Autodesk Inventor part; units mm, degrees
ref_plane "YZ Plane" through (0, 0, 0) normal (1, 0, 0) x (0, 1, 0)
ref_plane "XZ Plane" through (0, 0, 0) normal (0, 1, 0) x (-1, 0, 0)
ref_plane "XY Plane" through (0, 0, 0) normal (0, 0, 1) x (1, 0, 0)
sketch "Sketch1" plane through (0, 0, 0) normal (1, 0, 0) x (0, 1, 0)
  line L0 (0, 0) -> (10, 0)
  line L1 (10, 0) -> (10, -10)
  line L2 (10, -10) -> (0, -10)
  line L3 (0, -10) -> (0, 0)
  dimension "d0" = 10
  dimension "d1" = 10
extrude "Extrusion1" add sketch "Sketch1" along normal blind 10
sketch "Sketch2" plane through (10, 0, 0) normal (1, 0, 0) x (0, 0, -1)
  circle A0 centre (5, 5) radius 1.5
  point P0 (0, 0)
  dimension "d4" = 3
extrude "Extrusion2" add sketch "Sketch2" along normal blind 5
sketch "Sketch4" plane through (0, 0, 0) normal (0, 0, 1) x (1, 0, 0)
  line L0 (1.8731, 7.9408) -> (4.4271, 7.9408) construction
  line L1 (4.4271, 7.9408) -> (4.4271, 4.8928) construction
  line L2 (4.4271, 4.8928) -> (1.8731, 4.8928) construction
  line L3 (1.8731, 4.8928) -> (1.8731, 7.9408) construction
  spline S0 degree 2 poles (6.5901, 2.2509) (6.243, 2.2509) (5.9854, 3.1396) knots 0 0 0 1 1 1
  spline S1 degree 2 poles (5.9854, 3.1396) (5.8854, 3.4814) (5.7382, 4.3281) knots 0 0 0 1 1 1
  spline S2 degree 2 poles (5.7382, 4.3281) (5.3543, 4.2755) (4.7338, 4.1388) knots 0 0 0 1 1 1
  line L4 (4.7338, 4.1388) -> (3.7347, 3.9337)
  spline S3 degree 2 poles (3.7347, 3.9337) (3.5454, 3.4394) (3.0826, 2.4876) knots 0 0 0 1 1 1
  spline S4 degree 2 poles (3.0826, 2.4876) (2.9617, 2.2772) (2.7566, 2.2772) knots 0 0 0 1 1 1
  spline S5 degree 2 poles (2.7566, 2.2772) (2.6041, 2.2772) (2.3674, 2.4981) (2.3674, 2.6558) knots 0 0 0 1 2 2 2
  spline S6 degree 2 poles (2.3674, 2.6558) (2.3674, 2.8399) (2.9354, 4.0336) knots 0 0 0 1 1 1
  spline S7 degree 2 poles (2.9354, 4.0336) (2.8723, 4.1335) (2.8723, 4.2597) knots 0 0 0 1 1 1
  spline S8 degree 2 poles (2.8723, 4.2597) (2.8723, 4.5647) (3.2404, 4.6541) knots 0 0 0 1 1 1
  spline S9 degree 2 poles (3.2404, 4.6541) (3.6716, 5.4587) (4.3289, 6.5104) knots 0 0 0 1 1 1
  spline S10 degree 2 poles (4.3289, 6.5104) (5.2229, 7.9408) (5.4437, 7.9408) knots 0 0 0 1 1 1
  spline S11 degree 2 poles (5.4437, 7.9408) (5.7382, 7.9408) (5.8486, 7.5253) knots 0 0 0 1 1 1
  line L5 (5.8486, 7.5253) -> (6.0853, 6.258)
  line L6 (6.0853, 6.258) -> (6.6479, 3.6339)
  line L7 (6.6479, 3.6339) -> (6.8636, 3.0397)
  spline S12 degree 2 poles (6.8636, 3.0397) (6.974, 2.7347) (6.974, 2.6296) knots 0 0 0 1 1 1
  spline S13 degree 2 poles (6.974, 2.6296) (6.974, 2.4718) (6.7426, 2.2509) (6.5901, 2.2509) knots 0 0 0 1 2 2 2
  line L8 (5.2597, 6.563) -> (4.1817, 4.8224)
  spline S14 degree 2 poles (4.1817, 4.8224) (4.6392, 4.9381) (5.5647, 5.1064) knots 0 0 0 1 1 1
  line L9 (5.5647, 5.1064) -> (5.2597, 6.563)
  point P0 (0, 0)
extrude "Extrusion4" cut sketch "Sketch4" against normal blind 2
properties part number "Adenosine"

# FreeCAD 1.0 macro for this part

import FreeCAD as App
import Part
import Sketcher
Q = App.Units.Quantity


def add_polygon(sketch, points):
    """Adds a closed chain of lines whose ends are joined by coincident constraints."""
    first, n = sketch.GeometryCount, len(points)
    for a, b in zip(points, points[1:] + points[:1]):
        sketch.addGeometry(Part.LineSegment(App.Vector(*a, 0), App.Vector(*b, 0)), False)
    for i in range(n):
        sketch.addConstraint(Sketcher.Constraint("Coincident", first + i, 2, first + (i + 1) % n, 1))

doc = App.newDocument("Part")
body = doc.addObject("PartDesign::Body", "Body")

sketch1 = doc.addObject("Sketcher::SketchObject", "Sketch")
body.addObject(sketch1)
sketch1.AttachmentSupport = (doc.YZ_Plane, [""])
sketch1.MapMode = "FlatFace"
add_polygon(sketch1, [(10, 0), (0, 0), (0, -10), (10, -10)])
sketch1.addConstraint(Sketcher.Constraint("Horizontal", 0))
sketch1.addConstraint(Sketcher.Constraint("Vertical", 1))
sketch1.addConstraint(Sketcher.Constraint("Horizontal", 2))
sketch1.addConstraint(Sketcher.Constraint("Vertical", 3))
sketch1.addConstraint(Sketcher.Constraint("Coincident", 0, 2, -1, 1))
sketch1.addConstraint(Sketcher.Constraint("Equal", 2, 1))
sketch1.addConstraint(Sketcher.Constraint("DistanceX", 0, 2, 0, 1, Q("10 mm")))
pad1 = doc.addObject("PartDesign::Pad", "Pad")
body.addObject(pad1)
pad1.Profile = sketch1
pad1.Length = 10

sketch2 = doc.addObject("Sketcher::SketchObject", "Sketch001")
body.addObject(sketch2)
sketch2.AttachmentSupport = (doc.YZ_Plane, [""])
sketch2.MapMode = "FlatFace"
sketch2.AttachmentOffset = App.Placement(App.Vector(0, 0, 10), App.Rotation())
sketch2.addGeometry(Part.Circle(App.Vector(5, -5, 0), App.Vector(0, 0, 1), 1.5), False)
sketch2.addConstraint(Sketcher.Constraint("Diameter", 0, Q("3 mm")))
sketch2.addConstraint(Sketcher.Constraint("DistanceX", -1, 1, 0, 3, Q("5 mm")))
sketch2.addConstraint(Sketcher.Constraint("DistanceY", 0, 3, -1, 1, Q("5 mm")))
pad2 = doc.addObject("PartDesign::Pad", "Pad001")
body.addObject(pad2)
pad2.Profile = sketch2
pad2.Length = 5

sketch3 = doc.addObject("Sketcher::SketchObject", "Sketch002")
body.addObject(sketch3)
sketch3.AttachmentSupport = (doc.XY_Plane, [""])
sketch3.MapMode = "FlatFace"
sketch3.addGeometry(Part.BSplineCurve([App.Vector(6.5901, 2.2509, 0), App.Vector(6.243, 2.2509, 0), App.Vector(5.9854, 3.1396, 0)], [3, 3], [0, 1], False, 2, [1, 1, 1], False), False)
sketch3.addGeometry(Part.BSplineCurve([App.Vector(6.974, 2.6296, 0), App.Vector(6.974, 2.4718, 0), App.Vector(6.7426, 2.2509, 0), App.Vector(6.5901, 2.2509, 0)], [3, 1, 3], [0, 1, 2], False, 2, [1, 1, 1, 1], False), False)
sketch3.addGeometry(Part.BSplineCurve([App.Vector(6.8636, 3.0397, 0), App.Vector(6.974, 2.7347, 0), App.Vector(6.974, 2.6296, 0)], [3, 3], [0, 1], False, 2, [1, 1, 1], False), False)
sketch3.addGeometry(Part.LineSegment(App.Vector(6.8636, 3.0397, 0), App.Vector(6.6479, 3.6339, 0)), False)
sketch3.addGeometry(Part.LineSegment(App.Vector(6.6479, 3.6339, 0), App.Vector(6.0853, 6.258, 0)), False)
sketch3.addGeometry(Part.LineSegment(App.Vector(6.0853, 6.258, 0), App.Vector(5.8486, 7.5253, 0)), False)
sketch3.addGeometry(Part.BSplineCurve([App.Vector(5.4437, 7.9408, 0), App.Vector(5.7382, 7.9408, 0), App.Vector(5.8486, 7.5253, 0)], [3, 3], [0, 1], False, 2, [1, 1, 1], False), False)
sketch3.addGeometry(Part.BSplineCurve([App.Vector(4.3289, 6.5104, 0), App.Vector(5.2229, 7.9408, 0), App.Vector(5.4437, 7.9408, 0)], [3, 3], [0, 1], False, 2, [1, 1, 1], False), False)
sketch3.addGeometry(Part.BSplineCurve([App.Vector(3.2404, 4.6541, 0), App.Vector(3.6716, 5.4587, 0), App.Vector(4.3289, 6.5104, 0)], [3, 3], [0, 1], False, 2, [1, 1, 1], False), False)
sketch3.addGeometry(Part.BSplineCurve([App.Vector(2.8723, 4.2597, 0), App.Vector(2.8723, 4.5647, 0), App.Vector(3.2404, 4.6541, 0)], [3, 3], [0, 1], False, 2, [1, 1, 1], False), False)
sketch3.addGeometry(Part.BSplineCurve([App.Vector(2.9354, 4.0336, 0), App.Vector(2.8723, 4.1335, 0), App.Vector(2.8723, 4.2597, 0)], [3, 3], [0, 1], False, 2, [1, 1, 1], False), False)
sketch3.addGeometry(Part.BSplineCurve([App.Vector(2.3674, 2.6558, 0), App.Vector(2.3674, 2.8399, 0), App.Vector(2.9354, 4.0336, 0)], [3, 3], [0, 1], False, 2, [1, 1, 1], False), False)
sketch3.addGeometry(Part.BSplineCurve([App.Vector(2.7566, 2.2772, 0), App.Vector(2.6041, 2.2772, 0), App.Vector(2.3674, 2.4981, 0), App.Vector(2.3674, 2.6558, 0)], [3, 1, 3], [0, 1, 2], False, 2, [1, 1, 1, 1], False), False)
sketch3.addGeometry(Part.BSplineCurve([App.Vector(3.0826, 2.4876, 0), App.Vector(2.9617, 2.2772, 0), App.Vector(2.7566, 2.2772, 0)], [3, 3], [0, 1], False, 2, [1, 1, 1], False), False)
sketch3.addGeometry(Part.BSplineCurve([App.Vector(3.7347, 3.9337, 0), App.Vector(3.5454, 3.4394, 0), App.Vector(3.0826, 2.4876, 0)], [3, 3], [0, 1], False, 2, [1, 1, 1], False), False)
sketch3.addGeometry(Part.LineSegment(App.Vector(3.7347, 3.9337, 0), App.Vector(4.7338, 4.1388, 0)), False)
sketch3.addGeometry(Part.BSplineCurve([App.Vector(5.7382, 4.3281, 0), App.Vector(5.3543, 4.2755, 0), App.Vector(4.7338, 4.1388, 0)], [3, 3], [0, 1], False, 2, [1, 1, 1], False), False)
sketch3.addGeometry(Part.BSplineCurve([App.Vector(5.9854, 3.1396, 0), App.Vector(5.8854, 3.4814, 0), App.Vector(5.7382, 4.3281, 0)], [3, 3], [0, 1], False, 2, [1, 1, 1], False), False)
sketch3.addGeometry(Part.LineSegment(App.Vector(4.1817, 4.8224, 0), App.Vector(5.2597, 6.563, 0)), False)
sketch3.addGeometry(Part.LineSegment(App.Vector(5.2597, 6.563, 0), App.Vector(5.5647, 5.1064, 0)), False)
sketch3.addGeometry(Part.BSplineCurve([App.Vector(4.1817, 4.8224, 0), App.Vector(4.6392, 4.9381, 0), App.Vector(5.5647, 5.1064, 0)], [3, 3], [0, 1], False, 2, [1, 1, 1], False), False)
sketch3.addConstraint(Sketcher.Constraint("Block", 0))
sketch3.addConstraint(Sketcher.Constraint("Block", 1))
sketch3.addConstraint(Sketcher.Constraint("Block", 2))
sketch3.addConstraint(Sketcher.Constraint("Block", 6))
sketch3.addConstraint(Sketcher.Constraint("Block", 7))
sketch3.addConstraint(Sketcher.Constraint("Block", 8))
sketch3.addConstraint(Sketcher.Constraint("Block", 9))
sketch3.addConstraint(Sketcher.Constraint("Block", 10))
sketch3.addConstraint(Sketcher.Constraint("Block", 11))
sketch3.addConstraint(Sketcher.Constraint("Block", 12))
sketch3.addConstraint(Sketcher.Constraint("Block", 13))
sketch3.addConstraint(Sketcher.Constraint("Block", 14))
sketch3.addConstraint(Sketcher.Constraint("Block", 16))
sketch3.addConstraint(Sketcher.Constraint("Block", 17))
sketch3.addConstraint(Sketcher.Constraint("Block", 20))
sketch3.addConstraint(Sketcher.Constraint("Coincident", 2, 1, 3, 1))
sketch3.addConstraint(Sketcher.Constraint("Coincident", 3, 2, 4, 1))
sketch3.addConstraint(Sketcher.Constraint("Coincident", 4, 2, 5, 1))
sketch3.addConstraint(Sketcher.Constraint("Coincident", 5, 2, 6, 2))
sketch3.addConstraint(Sketcher.Constraint("Coincident", 14, 1, 15, 1))
sketch3.addConstraint(Sketcher.Constraint("Coincident", 15, 2, 16, 2))
sketch3.addConstraint(Sketcher.Constraint("Coincident", 18, 2, 19, 1))
sketch3.addConstraint(Sketcher.Constraint("Coincident", 19, 2, 20, 2))
sketch3.addConstraint(Sketcher.Constraint("Coincident", 20, 1, 18, 1))
sketch3.addConstraint(Sketcher.Constraint("DistanceX", -1, 1, 3, 2, Q("6.648 mm")))
sketch3.addConstraint(Sketcher.Constraint("DistanceY", -1, 1, 3, 2, Q("3.634 mm")))
sketch3.addConstraint(Sketcher.Constraint("DistanceY", -1, 1, 4, 2, Q("6.258 mm")))
sketch3.addConstraint(Sketcher.Constraint("DistanceY", -1, 1, 18, 2, Q("6.563 mm")))
sketch3.addConstraint(Sketcher.Constraint("DistanceX", 18, 2, 5, 2, Q("0.589 mm")))
sketch3.addConstraint(Sketcher.Constraint("Distance", 4, Q("2.6837 mm")))
pocket1 = doc.addObject("PartDesign::Pocket", "Pocket")
body.addObject(pocket1)
pocket1.Profile = sketch3
pocket1.Length = 2

doc.recompute()
